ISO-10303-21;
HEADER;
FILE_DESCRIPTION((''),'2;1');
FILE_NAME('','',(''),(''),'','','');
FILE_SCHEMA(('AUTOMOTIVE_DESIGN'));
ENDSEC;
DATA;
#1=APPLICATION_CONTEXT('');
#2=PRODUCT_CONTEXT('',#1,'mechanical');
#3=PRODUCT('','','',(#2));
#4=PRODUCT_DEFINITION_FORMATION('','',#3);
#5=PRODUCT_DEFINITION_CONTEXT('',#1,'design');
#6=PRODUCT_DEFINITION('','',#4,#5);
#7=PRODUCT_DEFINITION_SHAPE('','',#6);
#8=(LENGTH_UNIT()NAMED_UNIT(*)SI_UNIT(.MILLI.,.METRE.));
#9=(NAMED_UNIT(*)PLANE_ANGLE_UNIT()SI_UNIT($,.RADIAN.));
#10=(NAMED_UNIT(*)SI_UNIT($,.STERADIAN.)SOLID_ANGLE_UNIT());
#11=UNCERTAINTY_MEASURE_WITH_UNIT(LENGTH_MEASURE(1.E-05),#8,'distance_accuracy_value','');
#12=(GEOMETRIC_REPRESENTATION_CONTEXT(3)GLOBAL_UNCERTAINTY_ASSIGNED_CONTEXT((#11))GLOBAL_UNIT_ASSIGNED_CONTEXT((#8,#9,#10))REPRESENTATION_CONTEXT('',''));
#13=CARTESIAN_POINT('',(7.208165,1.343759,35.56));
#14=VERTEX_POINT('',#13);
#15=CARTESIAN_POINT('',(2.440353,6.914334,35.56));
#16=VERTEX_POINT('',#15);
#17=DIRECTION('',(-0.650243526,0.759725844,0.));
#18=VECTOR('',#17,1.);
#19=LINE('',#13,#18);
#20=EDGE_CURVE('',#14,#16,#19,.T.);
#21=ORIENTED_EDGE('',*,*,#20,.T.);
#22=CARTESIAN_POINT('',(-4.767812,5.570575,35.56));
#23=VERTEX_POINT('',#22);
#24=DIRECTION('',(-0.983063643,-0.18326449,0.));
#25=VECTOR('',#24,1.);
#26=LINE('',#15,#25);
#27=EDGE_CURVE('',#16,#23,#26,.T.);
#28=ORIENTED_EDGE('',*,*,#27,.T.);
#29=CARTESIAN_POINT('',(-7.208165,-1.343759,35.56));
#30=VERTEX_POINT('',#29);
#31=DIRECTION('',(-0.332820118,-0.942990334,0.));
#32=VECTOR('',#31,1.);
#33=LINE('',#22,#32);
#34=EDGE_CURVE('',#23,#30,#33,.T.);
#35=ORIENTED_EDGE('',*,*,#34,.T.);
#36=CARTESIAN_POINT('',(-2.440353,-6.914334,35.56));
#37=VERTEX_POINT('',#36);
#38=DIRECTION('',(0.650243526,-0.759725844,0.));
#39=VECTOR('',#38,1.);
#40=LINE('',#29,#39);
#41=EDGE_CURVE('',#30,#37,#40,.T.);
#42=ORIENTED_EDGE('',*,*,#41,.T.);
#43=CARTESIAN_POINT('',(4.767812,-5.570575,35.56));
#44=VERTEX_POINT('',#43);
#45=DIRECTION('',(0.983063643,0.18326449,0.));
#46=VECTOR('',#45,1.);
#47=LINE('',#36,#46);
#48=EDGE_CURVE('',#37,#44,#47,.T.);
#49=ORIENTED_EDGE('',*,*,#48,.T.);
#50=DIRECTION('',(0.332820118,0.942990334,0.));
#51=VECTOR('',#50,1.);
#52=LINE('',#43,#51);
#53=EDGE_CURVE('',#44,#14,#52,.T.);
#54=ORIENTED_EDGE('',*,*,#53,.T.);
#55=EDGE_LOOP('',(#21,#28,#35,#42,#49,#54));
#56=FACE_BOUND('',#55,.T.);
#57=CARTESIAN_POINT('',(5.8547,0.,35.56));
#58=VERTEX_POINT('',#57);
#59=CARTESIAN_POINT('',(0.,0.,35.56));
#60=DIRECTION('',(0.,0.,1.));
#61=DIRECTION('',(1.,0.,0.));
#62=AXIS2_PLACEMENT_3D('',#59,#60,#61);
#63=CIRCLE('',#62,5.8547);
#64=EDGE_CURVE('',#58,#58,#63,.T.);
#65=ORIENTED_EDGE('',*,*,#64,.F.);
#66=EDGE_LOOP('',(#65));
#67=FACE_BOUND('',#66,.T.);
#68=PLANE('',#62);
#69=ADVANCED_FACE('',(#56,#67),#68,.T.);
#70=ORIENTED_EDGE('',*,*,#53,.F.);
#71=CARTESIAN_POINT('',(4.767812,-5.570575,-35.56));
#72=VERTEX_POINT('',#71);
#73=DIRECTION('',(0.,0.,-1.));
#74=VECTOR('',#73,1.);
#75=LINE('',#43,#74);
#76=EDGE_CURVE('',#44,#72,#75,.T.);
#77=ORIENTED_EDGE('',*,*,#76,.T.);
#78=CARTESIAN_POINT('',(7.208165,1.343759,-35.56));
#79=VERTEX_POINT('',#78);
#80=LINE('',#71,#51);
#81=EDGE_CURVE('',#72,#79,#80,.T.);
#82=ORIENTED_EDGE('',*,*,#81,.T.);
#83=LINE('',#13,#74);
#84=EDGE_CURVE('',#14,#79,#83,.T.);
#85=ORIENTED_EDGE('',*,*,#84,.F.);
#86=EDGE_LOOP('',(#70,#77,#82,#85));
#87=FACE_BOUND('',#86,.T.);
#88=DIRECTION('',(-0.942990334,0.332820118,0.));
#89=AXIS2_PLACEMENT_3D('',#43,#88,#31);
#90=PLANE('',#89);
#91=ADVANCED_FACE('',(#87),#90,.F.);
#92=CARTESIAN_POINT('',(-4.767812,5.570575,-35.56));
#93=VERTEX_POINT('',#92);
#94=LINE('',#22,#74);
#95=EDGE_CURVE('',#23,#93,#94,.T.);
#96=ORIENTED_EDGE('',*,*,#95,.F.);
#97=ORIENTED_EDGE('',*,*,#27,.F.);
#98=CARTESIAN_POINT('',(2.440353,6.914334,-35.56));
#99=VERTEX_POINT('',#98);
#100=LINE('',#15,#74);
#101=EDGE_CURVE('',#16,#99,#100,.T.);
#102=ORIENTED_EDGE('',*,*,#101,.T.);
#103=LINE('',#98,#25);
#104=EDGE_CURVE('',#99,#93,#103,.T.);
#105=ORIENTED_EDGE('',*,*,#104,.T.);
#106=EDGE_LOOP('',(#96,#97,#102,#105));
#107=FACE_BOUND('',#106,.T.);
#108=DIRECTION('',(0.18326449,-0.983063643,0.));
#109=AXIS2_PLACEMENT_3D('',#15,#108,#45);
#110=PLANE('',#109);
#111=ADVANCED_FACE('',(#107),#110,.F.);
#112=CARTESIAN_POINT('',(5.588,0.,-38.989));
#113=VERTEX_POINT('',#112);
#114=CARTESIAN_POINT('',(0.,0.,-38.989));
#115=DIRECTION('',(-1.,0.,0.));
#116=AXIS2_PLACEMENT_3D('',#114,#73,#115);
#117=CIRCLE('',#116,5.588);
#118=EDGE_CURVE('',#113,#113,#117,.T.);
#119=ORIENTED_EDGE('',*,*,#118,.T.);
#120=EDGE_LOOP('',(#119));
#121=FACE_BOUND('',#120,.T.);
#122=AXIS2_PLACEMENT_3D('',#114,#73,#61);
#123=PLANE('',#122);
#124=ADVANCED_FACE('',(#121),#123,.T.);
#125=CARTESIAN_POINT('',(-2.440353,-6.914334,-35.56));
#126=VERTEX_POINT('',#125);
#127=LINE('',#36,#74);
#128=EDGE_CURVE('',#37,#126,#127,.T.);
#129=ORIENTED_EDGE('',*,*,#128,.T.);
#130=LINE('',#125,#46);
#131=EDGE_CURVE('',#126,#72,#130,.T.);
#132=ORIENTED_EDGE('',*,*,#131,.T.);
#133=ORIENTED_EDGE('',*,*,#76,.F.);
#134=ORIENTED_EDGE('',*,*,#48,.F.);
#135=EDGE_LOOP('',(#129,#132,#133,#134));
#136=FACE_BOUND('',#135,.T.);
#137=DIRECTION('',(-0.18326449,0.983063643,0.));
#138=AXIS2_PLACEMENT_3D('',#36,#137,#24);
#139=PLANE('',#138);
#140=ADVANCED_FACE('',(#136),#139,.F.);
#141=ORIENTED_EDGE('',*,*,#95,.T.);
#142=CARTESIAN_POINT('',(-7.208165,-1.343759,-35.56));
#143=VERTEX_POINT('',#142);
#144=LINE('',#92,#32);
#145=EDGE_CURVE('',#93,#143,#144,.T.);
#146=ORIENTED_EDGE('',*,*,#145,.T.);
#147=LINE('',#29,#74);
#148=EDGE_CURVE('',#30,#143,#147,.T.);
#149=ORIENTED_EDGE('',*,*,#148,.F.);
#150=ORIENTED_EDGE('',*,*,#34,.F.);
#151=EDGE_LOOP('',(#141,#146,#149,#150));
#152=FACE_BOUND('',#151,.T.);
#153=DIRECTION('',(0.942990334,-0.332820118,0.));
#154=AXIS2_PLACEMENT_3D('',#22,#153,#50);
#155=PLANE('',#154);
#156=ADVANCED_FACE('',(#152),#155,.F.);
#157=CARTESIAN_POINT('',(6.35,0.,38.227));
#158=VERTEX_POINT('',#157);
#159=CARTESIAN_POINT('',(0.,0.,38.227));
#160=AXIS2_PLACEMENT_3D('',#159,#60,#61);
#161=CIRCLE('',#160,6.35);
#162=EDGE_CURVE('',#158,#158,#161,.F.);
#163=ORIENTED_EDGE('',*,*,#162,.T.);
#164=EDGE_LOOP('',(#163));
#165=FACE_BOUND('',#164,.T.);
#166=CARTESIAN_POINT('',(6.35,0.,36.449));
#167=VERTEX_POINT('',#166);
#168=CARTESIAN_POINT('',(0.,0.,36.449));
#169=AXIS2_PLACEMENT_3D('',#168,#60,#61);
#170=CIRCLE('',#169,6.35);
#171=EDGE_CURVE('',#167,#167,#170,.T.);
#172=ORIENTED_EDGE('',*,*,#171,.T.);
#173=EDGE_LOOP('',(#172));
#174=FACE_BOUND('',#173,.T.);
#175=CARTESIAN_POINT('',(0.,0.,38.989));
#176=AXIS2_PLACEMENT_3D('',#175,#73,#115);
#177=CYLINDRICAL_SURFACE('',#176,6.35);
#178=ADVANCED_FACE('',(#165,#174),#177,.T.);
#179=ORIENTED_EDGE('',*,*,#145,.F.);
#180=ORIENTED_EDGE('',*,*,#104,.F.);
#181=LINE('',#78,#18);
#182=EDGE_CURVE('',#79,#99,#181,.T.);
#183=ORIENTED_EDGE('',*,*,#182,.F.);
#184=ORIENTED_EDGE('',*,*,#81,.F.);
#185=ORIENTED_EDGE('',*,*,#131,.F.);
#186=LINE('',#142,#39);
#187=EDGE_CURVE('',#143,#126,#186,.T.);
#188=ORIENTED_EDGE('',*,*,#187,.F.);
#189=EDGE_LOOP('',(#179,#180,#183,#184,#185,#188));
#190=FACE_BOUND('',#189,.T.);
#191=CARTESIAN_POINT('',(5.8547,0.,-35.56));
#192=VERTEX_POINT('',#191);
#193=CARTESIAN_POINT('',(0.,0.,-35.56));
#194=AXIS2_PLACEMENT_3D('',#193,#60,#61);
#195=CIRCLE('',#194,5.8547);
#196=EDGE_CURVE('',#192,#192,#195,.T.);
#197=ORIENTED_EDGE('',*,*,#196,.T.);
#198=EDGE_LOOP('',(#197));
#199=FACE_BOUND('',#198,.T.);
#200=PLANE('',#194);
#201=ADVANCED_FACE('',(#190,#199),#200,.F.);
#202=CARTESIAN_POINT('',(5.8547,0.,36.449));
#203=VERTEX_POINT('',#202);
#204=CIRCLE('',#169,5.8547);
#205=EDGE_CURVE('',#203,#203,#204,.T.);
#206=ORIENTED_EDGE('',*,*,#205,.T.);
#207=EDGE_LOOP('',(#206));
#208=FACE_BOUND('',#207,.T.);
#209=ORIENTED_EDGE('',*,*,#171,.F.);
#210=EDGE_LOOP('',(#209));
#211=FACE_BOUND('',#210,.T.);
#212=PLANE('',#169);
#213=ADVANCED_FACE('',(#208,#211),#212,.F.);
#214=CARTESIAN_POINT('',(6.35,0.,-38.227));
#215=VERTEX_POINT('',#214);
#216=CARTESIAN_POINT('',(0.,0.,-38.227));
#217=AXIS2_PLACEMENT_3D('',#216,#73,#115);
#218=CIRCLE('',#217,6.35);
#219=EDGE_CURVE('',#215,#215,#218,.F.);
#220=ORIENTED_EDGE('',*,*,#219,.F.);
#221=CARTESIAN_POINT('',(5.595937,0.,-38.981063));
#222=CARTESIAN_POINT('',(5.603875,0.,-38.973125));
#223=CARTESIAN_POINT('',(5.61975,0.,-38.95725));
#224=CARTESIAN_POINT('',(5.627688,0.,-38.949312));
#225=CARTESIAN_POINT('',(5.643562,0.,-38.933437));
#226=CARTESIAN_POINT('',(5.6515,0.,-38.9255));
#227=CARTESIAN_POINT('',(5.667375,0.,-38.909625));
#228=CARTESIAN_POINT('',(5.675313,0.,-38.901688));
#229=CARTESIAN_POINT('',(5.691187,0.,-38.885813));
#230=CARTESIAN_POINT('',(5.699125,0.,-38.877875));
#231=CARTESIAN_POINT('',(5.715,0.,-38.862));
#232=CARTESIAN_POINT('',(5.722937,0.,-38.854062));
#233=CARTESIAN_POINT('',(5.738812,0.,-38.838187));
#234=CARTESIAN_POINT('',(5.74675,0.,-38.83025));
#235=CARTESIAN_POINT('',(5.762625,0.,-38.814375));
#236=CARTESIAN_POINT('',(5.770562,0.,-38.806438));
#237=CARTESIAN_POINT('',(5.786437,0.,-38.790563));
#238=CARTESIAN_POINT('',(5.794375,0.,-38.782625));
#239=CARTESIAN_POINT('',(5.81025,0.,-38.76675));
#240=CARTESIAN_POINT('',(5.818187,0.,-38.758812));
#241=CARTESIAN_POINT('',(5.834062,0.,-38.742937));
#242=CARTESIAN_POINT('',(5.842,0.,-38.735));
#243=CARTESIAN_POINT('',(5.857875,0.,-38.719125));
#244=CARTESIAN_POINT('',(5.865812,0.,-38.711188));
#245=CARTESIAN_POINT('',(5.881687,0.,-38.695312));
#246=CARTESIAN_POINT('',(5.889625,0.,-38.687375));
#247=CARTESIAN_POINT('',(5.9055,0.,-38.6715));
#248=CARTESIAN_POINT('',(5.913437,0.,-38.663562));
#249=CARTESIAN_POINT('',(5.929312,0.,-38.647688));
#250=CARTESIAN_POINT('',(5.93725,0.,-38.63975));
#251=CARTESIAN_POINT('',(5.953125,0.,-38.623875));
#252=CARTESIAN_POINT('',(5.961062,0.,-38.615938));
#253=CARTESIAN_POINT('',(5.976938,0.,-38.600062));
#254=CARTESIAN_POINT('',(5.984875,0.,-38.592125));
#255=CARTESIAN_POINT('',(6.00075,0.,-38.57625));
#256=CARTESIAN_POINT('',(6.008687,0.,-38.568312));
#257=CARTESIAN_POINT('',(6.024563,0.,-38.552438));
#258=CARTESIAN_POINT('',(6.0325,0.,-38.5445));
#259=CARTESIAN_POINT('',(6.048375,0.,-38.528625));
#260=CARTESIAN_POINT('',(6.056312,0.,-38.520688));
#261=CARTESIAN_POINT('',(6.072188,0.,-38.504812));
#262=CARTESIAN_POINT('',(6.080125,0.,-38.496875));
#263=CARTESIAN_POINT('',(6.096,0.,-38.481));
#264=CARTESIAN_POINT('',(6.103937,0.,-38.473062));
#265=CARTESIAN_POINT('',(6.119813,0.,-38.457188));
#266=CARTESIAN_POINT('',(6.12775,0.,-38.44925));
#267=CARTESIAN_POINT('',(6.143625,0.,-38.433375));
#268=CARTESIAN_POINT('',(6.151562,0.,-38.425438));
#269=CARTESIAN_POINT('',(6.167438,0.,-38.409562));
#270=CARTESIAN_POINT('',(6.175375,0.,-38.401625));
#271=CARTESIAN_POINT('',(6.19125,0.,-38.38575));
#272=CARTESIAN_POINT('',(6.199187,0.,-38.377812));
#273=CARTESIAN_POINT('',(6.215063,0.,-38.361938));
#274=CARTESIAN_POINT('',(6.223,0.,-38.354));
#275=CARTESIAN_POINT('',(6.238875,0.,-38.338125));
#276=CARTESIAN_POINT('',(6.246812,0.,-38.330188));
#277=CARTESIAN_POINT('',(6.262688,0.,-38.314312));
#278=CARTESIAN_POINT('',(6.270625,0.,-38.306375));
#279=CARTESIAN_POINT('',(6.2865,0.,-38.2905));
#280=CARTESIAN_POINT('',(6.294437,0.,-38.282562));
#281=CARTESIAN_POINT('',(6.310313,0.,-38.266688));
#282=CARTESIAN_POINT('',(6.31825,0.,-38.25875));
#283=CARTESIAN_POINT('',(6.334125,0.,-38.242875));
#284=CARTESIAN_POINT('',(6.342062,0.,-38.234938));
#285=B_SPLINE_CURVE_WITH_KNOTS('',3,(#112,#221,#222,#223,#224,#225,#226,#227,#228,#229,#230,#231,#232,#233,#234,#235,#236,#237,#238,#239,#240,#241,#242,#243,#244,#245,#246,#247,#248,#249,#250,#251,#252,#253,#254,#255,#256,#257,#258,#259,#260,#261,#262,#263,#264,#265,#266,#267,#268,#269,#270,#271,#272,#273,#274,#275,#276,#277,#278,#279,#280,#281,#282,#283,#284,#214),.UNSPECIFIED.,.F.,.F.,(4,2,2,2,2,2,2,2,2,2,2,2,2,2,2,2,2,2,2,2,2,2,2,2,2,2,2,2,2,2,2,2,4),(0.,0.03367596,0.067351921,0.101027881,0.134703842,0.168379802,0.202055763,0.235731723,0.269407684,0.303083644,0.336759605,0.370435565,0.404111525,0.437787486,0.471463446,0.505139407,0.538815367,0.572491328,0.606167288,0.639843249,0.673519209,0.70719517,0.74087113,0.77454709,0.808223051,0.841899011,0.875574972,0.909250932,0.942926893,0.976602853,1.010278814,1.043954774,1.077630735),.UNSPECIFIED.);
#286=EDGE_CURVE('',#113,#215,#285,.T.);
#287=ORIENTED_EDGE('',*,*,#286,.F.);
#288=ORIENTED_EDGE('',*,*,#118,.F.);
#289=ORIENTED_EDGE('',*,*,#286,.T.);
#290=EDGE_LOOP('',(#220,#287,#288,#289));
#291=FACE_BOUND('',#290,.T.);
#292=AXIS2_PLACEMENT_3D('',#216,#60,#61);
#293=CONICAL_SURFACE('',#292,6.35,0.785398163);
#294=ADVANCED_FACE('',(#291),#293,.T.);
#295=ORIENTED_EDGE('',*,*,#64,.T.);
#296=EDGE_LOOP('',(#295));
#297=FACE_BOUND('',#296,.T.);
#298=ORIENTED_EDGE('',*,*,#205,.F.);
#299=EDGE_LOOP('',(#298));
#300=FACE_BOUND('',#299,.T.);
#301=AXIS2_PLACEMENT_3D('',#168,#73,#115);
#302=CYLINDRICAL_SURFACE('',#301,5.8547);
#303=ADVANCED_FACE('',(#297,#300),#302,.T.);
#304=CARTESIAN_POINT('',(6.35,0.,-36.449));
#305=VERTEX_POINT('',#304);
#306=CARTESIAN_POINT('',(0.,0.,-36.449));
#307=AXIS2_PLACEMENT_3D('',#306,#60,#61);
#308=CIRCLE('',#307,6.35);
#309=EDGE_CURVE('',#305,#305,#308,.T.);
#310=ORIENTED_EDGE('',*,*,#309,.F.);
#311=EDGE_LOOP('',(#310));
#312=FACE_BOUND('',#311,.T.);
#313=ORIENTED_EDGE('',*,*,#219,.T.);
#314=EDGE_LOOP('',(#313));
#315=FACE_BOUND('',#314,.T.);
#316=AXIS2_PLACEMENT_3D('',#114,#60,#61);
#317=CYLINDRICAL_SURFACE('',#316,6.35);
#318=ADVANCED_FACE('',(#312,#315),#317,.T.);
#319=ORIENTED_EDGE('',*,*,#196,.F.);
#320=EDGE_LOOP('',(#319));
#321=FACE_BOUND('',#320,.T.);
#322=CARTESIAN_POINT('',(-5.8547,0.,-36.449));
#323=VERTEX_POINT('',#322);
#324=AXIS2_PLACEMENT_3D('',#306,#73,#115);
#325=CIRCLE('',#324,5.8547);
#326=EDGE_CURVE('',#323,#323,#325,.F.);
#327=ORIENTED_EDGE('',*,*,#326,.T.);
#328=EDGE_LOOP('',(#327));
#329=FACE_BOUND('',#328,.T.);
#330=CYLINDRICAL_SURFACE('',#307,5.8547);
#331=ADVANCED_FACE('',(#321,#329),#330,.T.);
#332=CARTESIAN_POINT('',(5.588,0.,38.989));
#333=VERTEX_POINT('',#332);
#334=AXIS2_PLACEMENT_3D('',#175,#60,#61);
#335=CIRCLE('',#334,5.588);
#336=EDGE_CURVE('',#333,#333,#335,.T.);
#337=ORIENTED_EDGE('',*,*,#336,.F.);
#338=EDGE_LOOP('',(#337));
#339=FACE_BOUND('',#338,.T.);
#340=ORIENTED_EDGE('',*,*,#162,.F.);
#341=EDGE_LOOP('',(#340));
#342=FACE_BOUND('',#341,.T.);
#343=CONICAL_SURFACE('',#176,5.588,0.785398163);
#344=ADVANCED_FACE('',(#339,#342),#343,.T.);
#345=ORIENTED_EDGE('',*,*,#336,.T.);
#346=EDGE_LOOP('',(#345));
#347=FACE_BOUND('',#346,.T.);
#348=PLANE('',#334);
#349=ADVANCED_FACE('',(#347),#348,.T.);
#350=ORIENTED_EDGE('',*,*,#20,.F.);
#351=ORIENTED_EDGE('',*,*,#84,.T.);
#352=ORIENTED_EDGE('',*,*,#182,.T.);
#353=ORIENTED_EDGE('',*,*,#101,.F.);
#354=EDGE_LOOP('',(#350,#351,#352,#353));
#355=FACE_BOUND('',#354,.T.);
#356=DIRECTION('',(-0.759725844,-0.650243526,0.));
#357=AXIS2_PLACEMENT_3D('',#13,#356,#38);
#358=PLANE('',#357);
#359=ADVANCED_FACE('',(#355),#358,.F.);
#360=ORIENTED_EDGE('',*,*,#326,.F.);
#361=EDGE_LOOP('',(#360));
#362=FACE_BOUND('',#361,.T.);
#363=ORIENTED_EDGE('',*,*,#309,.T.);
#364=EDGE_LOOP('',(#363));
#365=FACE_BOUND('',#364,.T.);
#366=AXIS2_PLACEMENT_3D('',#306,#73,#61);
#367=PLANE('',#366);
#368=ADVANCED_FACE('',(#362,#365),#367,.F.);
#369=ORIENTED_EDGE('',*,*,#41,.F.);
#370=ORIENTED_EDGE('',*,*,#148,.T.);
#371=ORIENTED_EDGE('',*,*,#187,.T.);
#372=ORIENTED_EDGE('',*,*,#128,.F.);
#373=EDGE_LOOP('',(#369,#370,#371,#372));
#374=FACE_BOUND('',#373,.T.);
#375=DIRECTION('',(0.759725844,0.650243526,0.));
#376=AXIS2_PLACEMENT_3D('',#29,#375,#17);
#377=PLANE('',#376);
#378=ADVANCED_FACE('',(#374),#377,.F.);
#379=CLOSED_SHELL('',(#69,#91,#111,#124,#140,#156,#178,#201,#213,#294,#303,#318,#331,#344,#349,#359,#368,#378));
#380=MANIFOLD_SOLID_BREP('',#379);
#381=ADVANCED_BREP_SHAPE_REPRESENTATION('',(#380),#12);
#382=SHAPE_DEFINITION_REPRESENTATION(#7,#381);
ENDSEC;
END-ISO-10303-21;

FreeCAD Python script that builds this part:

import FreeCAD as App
import Part
import Sketcher
from FreeCAD import Vector
Q = App.Units.Quantity


def edges_at(feature, points):
    """Names of the edges that pass closest to the given points."""
    edges = feature.Shape.Edges
    near = lambda p: min(range(len(edges)), key=lambda i: edges[i].distToShape(Part.Vertex(*p))[0])
    return sorted({f"Edge{near(p) + 1}" for p in points})

doc = App.newDocument("Part")
params = doc.addObject("Spreadsheet::Sheet", "Params")
for row, (alias, value) in enumerate([
    ("pad1_length", "2.8 in"),
    ("sketch2_diameter", "0.461 in"),
    ("pad2_length", "0.035 in"),
    ("sketch3_diameter", "0.5 in"),
    ("pad3_length", "0.1 in"),
    ("chamfer_size", "0.03 in"),
    ("chamfer2_size", "0.03 in"),
], start=1):
    params.set(f"A{row}", alias)
    params.set(f"B{row}", "=" + value)
    params.setAlias(f"B{row}", alias)

body = doc.addObject("PartDesign::Body", "Body")

# Sketch on XY plane
sketch1 = doc.addObject("Sketcher::SketchObject", "Sketch")
body.addObject(sketch1)
sketch1.AttachmentSupport = (doc.XY_Plane, [""])
sketch1.MapMode = "FlatFace"
sketch1.addGeometry([
    Part.LineSegment(Vector(-2.440353, -6.914334, 0), Vector(4.767812, -5.570575, 0)),  # 0
    Part.LineSegment(Vector(4.767812, -5.570575, 0), Vector(7.208165, 1.343759, 0)),  # 1
    Part.LineSegment(Vector(7.208165, 1.343759, 0), Vector(2.440353, 6.914334, 0)),  # 2
    Part.LineSegment(Vector(2.440353, 6.914334, 0), Vector(-4.767812, 5.570575, 0)),  # 3
    Part.LineSegment(Vector(-4.767812, 5.570575, 0), Vector(-7.208165, -1.343759, 0)),  # 4
    Part.LineSegment(Vector(-7.208165, -1.343759, 0), Vector(-2.440353, -6.914334, 0)),  # 5
], False)
sketch1.addConstraint([
    Sketcher.Constraint("Coincident", 0, 2, 1, 1),
    Sketcher.Constraint("Coincident", 1, 2, 2, 1),
    Sketcher.Constraint("Coincident", 2, 2, 3, 1),
    Sketcher.Constraint("Coincident", 3, 2, 4, 1),
    Sketcher.Constraint("Coincident", 4, 2, 5, 1),
    Sketcher.Constraint("Coincident", 5, 2, 0, 1),
    Sketcher.Constraint("Symmetric", 0, 2, 3, 2, -1, 1),
    Sketcher.Constraint("Symmetric", 1, 2, 4, 2, -1, 1),
    Sketcher.Constraint("Symmetric", 2, 2, 5, 2, -1, 1),
    Sketcher.Constraint("Equal", 0, 1),
    Sketcher.Constraint("Equal", 1, 2),
    Sketcher.Constraint("Distance", 0, 7.332348),
    Sketcher.Constraint("DistanceY", -1, 1, 1, 2, 1.343759),
    Sketcher.Constraint("DistanceX", 2, 2, 0, 2, 2.327459),
    Sketcher.Constraint("DistanceY", 0, 2, 2, 2, 12.484908),
])
pad1 = doc.addObject("PartDesign::Pad", "Pad")
body.addObject(pad1)
pad1.Profile = sketch1
pad1.setExpression("Length", "Params.pad1_length")
pad1.Midplane = True

# Sketch on XY plane
sketch2 = doc.addObject("Sketcher::SketchObject", "Sketch001")
body.addObject(sketch2)
sketch2.AttachmentSupport = (doc.XY_Plane, [""])
sketch2.MapMode = "FlatFace"
sketch2.AttachmentOffset = App.Placement(Vector(0, 0, 1.4 * 25.4), App.Rotation())
sketch2.addGeometry(Part.Circle(Vector(0, 0, 0), Vector(0, 0, 1), 5.8547), False)
sketch2.addConstraint([
    Sketcher.Constraint("Coincident", 0, 3, -1, 1),
    Sketcher.Constraint("Diameter", 0, Q("0.461 in")),
])
sketch2.setExpression("Constraints[1]", "Params.sketch2_diameter")
pad2 = doc.addObject("PartDesign::Pad", "Pad001")
body.addObject(pad2)
pad2.Profile = sketch2
pad2.setExpression("Length", "Params.pad2_length")

# Sketch on XY plane
sketch3 = doc.addObject("Sketcher::SketchObject", "Sketch002")
body.addObject(sketch3)
sketch3.AttachmentSupport = (doc.XY_Plane, [""])
sketch3.MapMode = "FlatFace"
sketch3.AttachmentOffset = App.Placement(Vector(0, 0, 1.435 * 25.4), App.Rotation())
sketch3.addGeometry(Part.Circle(Vector(0, 0, 0), Vector(0, 0, 1), 6.35), False)
sketch3.addConstraint([
    Sketcher.Constraint("Coincident", 0, 3, -1, 1),
    Sketcher.Constraint("Diameter", 0, Q("0.5 in")),
])
sketch3.setExpression("Constraints[1]", "Params.sketch3_diameter")
pad3 = doc.addObject("PartDesign::Pad", "Pad002")
body.addObject(pad3)
pad3.Profile = sketch3
pad3.setExpression("Length", "Params.pad3_length")
doc.recompute()

chamfer = doc.addObject("PartDesign::Chamfer", "Chamfer")
body.addObject(chamfer)
chamfer.Base = (pad3, edges_at(pad3, [(-6.35, 0, 38.989)]))
chamfer.setExpression("Size", "Params.chamfer_size")
doc.recompute()

mirrored = doc.addObject("PartDesign::Mirrored", "Mirrored")
body.addObject(mirrored)
mirrored.Originals = [pad2, pad3]
mirrored.MirrorPlane = (doc.XY_Plane, [""])
body.Tip = mirrored
doc.recompute()

chamfer2 = doc.addObject("PartDesign::Chamfer", "Chamfer001")
body.addObject(chamfer2)
chamfer2.Base = (mirrored, edges_at(mirrored, [(-6.35, 0, -38.989)]))
chamfer2.setExpression("Size", "Params.chamfer2_size")

doc.recompute()
